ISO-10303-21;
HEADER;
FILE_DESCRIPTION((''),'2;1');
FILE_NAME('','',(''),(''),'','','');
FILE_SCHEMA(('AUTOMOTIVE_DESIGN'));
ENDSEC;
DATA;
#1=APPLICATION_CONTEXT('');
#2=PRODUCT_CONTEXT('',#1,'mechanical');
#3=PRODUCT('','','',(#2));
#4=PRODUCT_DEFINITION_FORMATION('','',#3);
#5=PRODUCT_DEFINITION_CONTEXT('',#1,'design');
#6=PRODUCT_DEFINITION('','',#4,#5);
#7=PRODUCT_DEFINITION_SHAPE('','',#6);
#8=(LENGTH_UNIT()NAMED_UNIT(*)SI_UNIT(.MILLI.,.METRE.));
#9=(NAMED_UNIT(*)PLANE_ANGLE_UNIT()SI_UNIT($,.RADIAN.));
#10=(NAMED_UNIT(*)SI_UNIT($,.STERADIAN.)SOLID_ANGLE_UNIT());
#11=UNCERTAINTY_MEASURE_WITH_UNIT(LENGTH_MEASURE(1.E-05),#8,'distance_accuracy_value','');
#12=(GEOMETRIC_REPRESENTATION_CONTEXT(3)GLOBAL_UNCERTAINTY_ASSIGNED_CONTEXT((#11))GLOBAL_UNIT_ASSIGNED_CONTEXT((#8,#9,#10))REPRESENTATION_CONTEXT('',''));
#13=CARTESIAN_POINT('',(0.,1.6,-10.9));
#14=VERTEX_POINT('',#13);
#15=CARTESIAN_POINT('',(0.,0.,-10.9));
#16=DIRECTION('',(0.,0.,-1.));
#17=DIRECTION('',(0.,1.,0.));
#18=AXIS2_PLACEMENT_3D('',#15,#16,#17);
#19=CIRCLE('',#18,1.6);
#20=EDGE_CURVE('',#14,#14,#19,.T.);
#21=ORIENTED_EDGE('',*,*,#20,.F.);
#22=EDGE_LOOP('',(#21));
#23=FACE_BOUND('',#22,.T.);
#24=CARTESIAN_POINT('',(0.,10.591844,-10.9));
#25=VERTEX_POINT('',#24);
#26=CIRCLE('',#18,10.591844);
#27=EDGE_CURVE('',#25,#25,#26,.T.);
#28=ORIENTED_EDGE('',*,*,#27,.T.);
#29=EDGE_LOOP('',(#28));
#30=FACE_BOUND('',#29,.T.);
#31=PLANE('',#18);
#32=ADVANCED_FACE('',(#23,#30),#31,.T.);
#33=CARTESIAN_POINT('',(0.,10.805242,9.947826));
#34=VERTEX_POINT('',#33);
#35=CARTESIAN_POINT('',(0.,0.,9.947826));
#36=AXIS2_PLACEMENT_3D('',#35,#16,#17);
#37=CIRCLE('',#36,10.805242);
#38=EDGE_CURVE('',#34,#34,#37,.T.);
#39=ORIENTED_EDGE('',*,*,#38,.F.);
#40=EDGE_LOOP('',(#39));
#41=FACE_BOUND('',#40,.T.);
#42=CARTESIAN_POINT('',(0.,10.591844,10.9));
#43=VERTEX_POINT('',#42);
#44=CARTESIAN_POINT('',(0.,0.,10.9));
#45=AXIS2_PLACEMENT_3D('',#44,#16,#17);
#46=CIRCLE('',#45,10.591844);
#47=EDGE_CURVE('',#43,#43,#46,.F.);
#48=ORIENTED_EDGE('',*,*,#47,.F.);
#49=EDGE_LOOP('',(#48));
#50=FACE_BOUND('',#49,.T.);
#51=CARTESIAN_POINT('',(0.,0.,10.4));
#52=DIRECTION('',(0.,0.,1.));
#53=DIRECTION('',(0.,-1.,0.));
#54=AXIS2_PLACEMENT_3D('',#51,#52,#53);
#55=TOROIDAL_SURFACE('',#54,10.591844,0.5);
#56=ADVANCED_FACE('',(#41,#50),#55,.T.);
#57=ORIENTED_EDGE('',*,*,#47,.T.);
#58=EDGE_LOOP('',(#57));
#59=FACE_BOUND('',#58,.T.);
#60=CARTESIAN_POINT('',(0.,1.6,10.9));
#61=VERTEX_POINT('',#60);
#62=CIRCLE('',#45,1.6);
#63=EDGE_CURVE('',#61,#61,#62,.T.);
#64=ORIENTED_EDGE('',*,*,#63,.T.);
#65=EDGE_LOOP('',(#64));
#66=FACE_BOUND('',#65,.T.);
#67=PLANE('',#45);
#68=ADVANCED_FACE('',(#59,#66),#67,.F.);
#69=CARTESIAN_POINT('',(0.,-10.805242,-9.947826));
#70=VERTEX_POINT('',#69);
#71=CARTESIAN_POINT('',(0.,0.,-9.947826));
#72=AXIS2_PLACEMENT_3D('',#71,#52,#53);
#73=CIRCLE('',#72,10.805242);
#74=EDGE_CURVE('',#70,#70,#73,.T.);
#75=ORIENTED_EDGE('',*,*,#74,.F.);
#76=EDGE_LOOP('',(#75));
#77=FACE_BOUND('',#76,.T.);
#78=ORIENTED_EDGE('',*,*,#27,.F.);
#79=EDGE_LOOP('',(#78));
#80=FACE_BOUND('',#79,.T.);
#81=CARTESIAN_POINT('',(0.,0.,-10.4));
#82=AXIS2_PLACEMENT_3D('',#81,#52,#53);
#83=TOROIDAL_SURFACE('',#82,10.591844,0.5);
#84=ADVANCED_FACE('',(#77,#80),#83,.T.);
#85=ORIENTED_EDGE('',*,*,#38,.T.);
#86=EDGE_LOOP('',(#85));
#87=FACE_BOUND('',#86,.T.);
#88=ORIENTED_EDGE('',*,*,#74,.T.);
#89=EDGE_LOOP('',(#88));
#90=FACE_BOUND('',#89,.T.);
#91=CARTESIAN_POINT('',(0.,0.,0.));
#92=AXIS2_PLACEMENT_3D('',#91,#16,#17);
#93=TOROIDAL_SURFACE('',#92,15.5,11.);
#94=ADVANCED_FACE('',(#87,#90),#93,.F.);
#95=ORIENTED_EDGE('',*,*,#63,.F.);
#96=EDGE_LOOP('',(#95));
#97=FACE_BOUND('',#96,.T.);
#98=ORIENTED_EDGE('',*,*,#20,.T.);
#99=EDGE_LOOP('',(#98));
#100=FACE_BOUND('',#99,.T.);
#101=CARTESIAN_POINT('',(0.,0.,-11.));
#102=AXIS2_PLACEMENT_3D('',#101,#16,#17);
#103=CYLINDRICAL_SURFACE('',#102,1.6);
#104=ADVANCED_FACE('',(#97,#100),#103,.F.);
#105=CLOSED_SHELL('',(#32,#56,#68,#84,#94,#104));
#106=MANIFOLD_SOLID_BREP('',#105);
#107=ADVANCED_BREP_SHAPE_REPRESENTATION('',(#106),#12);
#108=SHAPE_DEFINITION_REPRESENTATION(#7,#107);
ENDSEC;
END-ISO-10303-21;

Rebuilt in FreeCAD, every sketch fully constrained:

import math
import FreeCAD as App
import Part
import Sketcher
Q = App.Units.Quantity


def edges_at(feature, points):
    """Names of the edges that pass closest to the given points."""
    edges = feature.Shape.Edges
    near = lambda p: min(range(len(edges)), key=lambda i: edges[i].distToShape(Part.Vertex(*p))[0])
    return sorted({f"Edge{near(p) + 1}" for p in points})

doc = App.newDocument("Part")
body = doc.addObject("PartDesign::Body", "Body")

# Sketch on YZ plane
sketch1 = body.newObject("Sketcher::SketchObject", "Sketch")
sketch1.AttachmentSupport = (doc.getObject("YZ_Plane"), [""])
sketch1.MapMode = "FlatFace"
sketch1.addGeometry([
    Part.LineSegment(App.Vector(2, -11, 0), App.Vector(14, -11, 0)),
    Part.ArcOfCircle(Part.Circle(App.Vector(16, 0, 0), App.Vector(0, 0, 1), 11), math.radians(98), math.radians(262)),
    Part.LineSegment(App.Vector(14, 11, 0), App.Vector(2, 11, 0)),
    Part.LineSegment(App.Vector(2, 11, 0), App.Vector(2, -11, 0)),
], False)
sketch1.addConstraint([
    Sketcher.Constraint("Coincident", 0, 2, 1, 2),
    Sketcher.Constraint("Coincident", 1, 1, 2, 1),
    Sketcher.Constraint("Coincident", 2, 2, 3, 1),
    Sketcher.Constraint("Coincident", 3, 2, 0, 1),
    Sketcher.Constraint("Horizontal", 0),
    Sketcher.Constraint("Horizontal", 2),
    Sketcher.Constraint("Vertical", 3),
    Sketcher.Constraint("Symmetric", 0, 2, 1, 1, -1),
    Sketcher.Constraint("Radius", 1, Q("11 mm")),
    Sketcher.Constraint("DistanceY", 3, 2, 3, 1, Q("21.8 mm")),
    Sketcher.Constraint("DistanceX", -1, 1, 1, 3, Q("15.5 mm")),
    Sketcher.Constraint("DistanceX", -1, 1, 2, 2, Q("1.6 mm")),
])
revolution = body.newObject("PartDesign::Revolution", "Revolution")
revolution.Profile = sketch1
revolution.ReferenceAxis = (sketch1, ["V_Axis"])
revolution.Angle = 360
doc.recompute()

fillet = body.newObject("PartDesign::Fillet", "Fillet")
fillet.Base = (revolution, edges_at(revolution, [(0, -14.02, 10.9), (0, -14.02, -10.9)]))
fillet.Radius = 0.5

doc.recompute()
